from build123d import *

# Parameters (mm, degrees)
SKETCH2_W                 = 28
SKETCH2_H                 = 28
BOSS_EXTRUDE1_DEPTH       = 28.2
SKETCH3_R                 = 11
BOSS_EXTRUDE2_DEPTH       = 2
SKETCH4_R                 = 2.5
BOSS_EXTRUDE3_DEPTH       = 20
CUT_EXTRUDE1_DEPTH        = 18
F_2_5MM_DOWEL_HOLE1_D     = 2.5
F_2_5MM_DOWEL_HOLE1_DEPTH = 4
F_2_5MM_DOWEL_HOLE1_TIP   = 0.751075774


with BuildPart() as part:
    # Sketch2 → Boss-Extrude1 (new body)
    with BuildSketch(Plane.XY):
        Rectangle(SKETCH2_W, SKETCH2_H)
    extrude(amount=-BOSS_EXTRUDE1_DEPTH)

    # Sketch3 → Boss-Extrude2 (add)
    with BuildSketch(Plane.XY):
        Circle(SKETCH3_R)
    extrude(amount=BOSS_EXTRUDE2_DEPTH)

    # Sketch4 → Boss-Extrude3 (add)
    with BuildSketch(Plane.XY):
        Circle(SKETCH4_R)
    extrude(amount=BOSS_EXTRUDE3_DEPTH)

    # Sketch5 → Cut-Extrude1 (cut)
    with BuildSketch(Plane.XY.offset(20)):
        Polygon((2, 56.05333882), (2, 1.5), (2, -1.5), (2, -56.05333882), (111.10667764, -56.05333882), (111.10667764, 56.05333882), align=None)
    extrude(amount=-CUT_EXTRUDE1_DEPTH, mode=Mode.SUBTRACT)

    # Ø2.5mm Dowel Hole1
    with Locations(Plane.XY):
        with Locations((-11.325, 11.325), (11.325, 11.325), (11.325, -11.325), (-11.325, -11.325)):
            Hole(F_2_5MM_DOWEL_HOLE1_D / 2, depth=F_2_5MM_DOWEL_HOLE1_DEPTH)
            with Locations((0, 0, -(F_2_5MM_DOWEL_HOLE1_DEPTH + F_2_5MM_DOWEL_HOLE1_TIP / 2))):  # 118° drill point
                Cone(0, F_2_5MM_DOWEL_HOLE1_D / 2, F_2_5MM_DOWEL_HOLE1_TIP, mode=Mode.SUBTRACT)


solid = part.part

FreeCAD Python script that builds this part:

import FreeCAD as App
import Part
import Sketcher
Q = App.Units.Quantity


def add_polygon(sketch, points):
    """Adds a closed chain of lines whose ends are joined by coincident constraints."""
    first, n = sketch.GeometryCount, len(points)
    for a, b in zip(points, points[1:] + points[:1]):
        sketch.addGeometry(Part.LineSegment(App.Vector(*a, 0), App.Vector(*b, 0)), False)
    for i in range(n):
        sketch.addConstraint(Sketcher.Constraint("Coincident", first + i, 2, first + (i + 1) % n, 1))

doc = App.newDocument("Part")
body = doc.addObject("PartDesign::Body", "Body")

sketch1 = doc.addObject("Sketcher::SketchObject", "Sketch")
body.addObject(sketch1)
sketch1.AttachmentSupport = (doc.XY_Plane, [""])
sketch1.MapMode = "FlatFace"
add_polygon(sketch1, [(-14, 14), (-14, -14), (14, -14), (14, 14)])
sketch1.addConstraint([
    Sketcher.Constraint("Vertical", 0),
    Sketcher.Constraint("Horizontal", 1),
    Sketcher.Constraint("Vertical", 2),
    Sketcher.Constraint("Horizontal", 3),
    Sketcher.Constraint("Symmetric", 0, 2, 2, 2, -1, 1),
    Sketcher.Constraint("Equal", 3, 0),
    Sketcher.Constraint("DistanceX", 1, 1, 1, 2, Q("28 mm")),
])
pad1 = doc.addObject("PartDesign::Pad", "Pad")
body.addObject(pad1)
pad1.Profile = sketch1
pad1.Length = 28.2
pad1.Reversed = True

sketch2 = doc.addObject("Sketcher::SketchObject", "Sketch001")
body.addObject(sketch2)
sketch2.AttachmentSupport = (doc.XY_Plane, [""])
sketch2.MapMode = "FlatFace"
sketch2.addGeometry(Part.Circle(App.Vector(0, 0, 0), App.Vector(0, 0, 1), 11), False)
sketch2.addConstraint([
    Sketcher.Constraint("Coincident", 0, 3, -1, 1),
    Sketcher.Constraint("Diameter", 0, Q("22 mm")),
])
pad2 = doc.addObject("PartDesign::Pad", "Pad001")
body.addObject(pad2)
pad2.Profile = sketch2
pad2.Length = 2

sketch3 = doc.addObject("Sketcher::SketchObject", "Sketch002")
body.addObject(sketch3)
sketch3.AttachmentSupport = (doc.XY_Plane, [""])
sketch3.MapMode = "FlatFace"
sketch3.addGeometry(Part.Circle(App.Vector(0, 0, 0), App.Vector(0, 0, 1), 2.5), False)
sketch3.addConstraint([
    Sketcher.Constraint("Coincident", 0, 3, -1, 1),
    Sketcher.Constraint("Diameter", 0, Q("5 mm")),
])
pad3 = doc.addObject("PartDesign::Pad", "Pad002")
body.addObject(pad3)
pad3.Profile = sketch3
pad3.Length = 20

sketch4 = doc.addObject("Sketcher::SketchObject", "Sketch003")
body.addObject(sketch4)
sketch4.AttachmentSupport = (doc.XY_Plane, [""])
sketch4.MapMode = "FlatFace"
sketch4.AttachmentOffset = App.Placement(App.Vector(0, 0, 20), App.Rotation())
add_polygon(sketch4, [(2, 56.053339), (2, -56.053339), (111.106678, -56.053339), (111.106678, 56.053339)])
sketch4.addConstraint([
    Sketcher.Constraint("Vertical", 0),
    Sketcher.Constraint("Horizontal", 1),
    Sketcher.Constraint("Vertical", 2),
    Sketcher.Constraint("Horizontal", 3),
    Sketcher.Constraint("DistanceX", -1, 1, 0, 2, Q("2 mm")),
    Sketcher.Constraint("DistanceX", 1, 1, 1, 2, Q("109.106678 mm")),
    Sketcher.Constraint("DistanceY", 0, 2, 0, 1, Q("112.106678 mm")),
    Sketcher.Constraint("DistanceY", 0, 2, -1, 1, Q("56.053339 mm")),
])
pocket1 = doc.addObject("PartDesign::Pocket", "Pocket")
body.addObject(pocket1)
pocket1.Profile = sketch4
pocket1.Length = 18

sketch5 = doc.addObject("Sketcher::SketchObject", "Sketch004")
body.addObject(sketch5)
sketch5.AttachmentSupport = (doc.XY_Plane, [""])
sketch5.MapMode = "FlatFace"
sketch5.addGeometry([
    Part.Circle(App.Vector(-11.325, 11.325, 0), App.Vector(0, 0, 1), 1.25),
    Part.Circle(App.Vector(11.325, 11.325, 0), App.Vector(0, 0, 1), 1.25),
    Part.Circle(App.Vector(11.325, -11.325, 0), App.Vector(0, 0, 1), 1.25),
    Part.Circle(App.Vector(-11.325, -11.325, 0), App.Vector(0, 0, 1), 1.25),
], False)
sketch5.addConstraint([
    Sketcher.Constraint("Equal", 0, 1),
    Sketcher.Constraint("Equal", 1, 2),
    Sketcher.Constraint("Equal", 2, 3),
    Sketcher.Constraint("Symmetric", 0, 3, 2, 3, -1, 1),
    Sketcher.Constraint("Symmetric", 1, 3, 3, 3, -1, 1),
    Sketcher.Constraint("Symmetric", 0, 3, 1, 3, -2),
    Sketcher.Constraint("Diameter", 0, Q("2.5 mm")),
    Sketcher.Constraint("DistanceX", 0, 3, 1, 3, Q("22.65 mm")),
    Sketcher.Constraint("DistanceY", 2, 3, 1, 3, Q("22.65 mm")),
])
doc.recompute()
hole = doc.addObject("PartDesign::Hole", "Hole")
body.addObject(hole)
hole.Profile = sketch5
hole.ThreadType = "None"
hole.Diameter = 2.5
hole.DepthType = "Dimension"
hole.Depth = 4
hole.DrillPoint = "Angled"
hole.DrillPointAngle = 118

doc.recompute()
